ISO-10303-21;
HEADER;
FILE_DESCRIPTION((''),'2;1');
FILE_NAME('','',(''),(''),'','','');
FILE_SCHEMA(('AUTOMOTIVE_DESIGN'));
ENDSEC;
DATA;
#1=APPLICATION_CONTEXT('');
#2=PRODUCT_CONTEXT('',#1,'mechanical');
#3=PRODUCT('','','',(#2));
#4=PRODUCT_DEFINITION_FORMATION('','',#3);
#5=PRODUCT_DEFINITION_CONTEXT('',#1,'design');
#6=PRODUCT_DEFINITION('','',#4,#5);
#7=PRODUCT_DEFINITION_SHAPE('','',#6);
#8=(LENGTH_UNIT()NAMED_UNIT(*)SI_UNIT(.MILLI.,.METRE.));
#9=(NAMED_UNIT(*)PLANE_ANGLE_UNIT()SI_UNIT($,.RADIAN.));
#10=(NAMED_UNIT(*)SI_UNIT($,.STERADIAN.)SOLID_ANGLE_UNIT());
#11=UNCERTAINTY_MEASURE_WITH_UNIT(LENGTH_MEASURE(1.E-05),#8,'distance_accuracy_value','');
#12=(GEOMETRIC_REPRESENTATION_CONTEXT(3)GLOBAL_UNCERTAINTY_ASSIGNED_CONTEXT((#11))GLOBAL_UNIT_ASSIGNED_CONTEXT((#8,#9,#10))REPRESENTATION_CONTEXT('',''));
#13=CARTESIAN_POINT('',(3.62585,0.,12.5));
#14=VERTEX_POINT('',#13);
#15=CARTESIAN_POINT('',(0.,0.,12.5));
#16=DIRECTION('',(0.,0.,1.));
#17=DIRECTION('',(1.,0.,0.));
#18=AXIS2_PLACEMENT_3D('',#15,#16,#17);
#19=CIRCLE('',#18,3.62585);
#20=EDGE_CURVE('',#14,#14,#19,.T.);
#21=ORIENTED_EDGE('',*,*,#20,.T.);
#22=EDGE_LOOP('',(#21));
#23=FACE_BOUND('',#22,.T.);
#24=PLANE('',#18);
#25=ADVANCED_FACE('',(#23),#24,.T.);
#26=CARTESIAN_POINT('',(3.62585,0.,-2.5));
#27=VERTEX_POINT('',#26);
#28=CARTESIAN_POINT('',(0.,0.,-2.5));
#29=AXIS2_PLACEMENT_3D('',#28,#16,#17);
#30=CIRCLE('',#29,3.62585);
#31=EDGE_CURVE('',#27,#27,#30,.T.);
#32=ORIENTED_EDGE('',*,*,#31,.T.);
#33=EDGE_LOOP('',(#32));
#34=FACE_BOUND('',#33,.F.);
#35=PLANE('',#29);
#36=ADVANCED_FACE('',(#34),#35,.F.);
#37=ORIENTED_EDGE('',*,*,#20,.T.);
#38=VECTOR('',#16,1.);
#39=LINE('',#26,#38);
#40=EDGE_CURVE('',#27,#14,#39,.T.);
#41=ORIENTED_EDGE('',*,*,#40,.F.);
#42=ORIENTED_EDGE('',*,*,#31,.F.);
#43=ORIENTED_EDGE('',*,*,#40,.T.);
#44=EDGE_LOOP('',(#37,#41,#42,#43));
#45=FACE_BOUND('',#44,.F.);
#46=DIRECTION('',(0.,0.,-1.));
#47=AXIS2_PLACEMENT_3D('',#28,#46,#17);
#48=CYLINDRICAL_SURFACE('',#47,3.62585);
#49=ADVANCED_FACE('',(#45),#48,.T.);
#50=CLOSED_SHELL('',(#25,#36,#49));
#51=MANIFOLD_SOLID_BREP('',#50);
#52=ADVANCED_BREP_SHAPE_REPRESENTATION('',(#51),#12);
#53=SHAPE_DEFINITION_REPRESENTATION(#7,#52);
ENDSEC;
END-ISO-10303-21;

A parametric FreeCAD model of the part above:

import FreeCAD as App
import Part
import Sketcher
from FreeCAD import Vector

doc = App.newDocument("Part")
body = doc.addObject("PartDesign::Body", "Body")

# Sketch on XY plane
sketch1 = body.newObject("Sketcher::SketchObject", "Sketch")
sketch1.AttachmentSupport = (doc.getObject("XY_Plane"), [""])
sketch1.MapMode = "FlatFace"
sketch1.AttachmentOffset = App.Placement(Vector(0, 0, -2.5), App.Rotation())
sketch1.addGeometry(Part.Circle(Vector(0, 0, 0), Vector(0, 0, 1), 3.6), False)
sketch1.addConstraint(Sketcher.Constraint("Coincident", 0, 3, -1, 1))
sketch1.addConstraint(Sketcher.Constraint("Diameter", 0, 7.2517))
pad1 = body.newObject("PartDesign::Pad", "Pad")
pad1.Profile = sketch1
pad1.Length = 15

doc.recompute()
